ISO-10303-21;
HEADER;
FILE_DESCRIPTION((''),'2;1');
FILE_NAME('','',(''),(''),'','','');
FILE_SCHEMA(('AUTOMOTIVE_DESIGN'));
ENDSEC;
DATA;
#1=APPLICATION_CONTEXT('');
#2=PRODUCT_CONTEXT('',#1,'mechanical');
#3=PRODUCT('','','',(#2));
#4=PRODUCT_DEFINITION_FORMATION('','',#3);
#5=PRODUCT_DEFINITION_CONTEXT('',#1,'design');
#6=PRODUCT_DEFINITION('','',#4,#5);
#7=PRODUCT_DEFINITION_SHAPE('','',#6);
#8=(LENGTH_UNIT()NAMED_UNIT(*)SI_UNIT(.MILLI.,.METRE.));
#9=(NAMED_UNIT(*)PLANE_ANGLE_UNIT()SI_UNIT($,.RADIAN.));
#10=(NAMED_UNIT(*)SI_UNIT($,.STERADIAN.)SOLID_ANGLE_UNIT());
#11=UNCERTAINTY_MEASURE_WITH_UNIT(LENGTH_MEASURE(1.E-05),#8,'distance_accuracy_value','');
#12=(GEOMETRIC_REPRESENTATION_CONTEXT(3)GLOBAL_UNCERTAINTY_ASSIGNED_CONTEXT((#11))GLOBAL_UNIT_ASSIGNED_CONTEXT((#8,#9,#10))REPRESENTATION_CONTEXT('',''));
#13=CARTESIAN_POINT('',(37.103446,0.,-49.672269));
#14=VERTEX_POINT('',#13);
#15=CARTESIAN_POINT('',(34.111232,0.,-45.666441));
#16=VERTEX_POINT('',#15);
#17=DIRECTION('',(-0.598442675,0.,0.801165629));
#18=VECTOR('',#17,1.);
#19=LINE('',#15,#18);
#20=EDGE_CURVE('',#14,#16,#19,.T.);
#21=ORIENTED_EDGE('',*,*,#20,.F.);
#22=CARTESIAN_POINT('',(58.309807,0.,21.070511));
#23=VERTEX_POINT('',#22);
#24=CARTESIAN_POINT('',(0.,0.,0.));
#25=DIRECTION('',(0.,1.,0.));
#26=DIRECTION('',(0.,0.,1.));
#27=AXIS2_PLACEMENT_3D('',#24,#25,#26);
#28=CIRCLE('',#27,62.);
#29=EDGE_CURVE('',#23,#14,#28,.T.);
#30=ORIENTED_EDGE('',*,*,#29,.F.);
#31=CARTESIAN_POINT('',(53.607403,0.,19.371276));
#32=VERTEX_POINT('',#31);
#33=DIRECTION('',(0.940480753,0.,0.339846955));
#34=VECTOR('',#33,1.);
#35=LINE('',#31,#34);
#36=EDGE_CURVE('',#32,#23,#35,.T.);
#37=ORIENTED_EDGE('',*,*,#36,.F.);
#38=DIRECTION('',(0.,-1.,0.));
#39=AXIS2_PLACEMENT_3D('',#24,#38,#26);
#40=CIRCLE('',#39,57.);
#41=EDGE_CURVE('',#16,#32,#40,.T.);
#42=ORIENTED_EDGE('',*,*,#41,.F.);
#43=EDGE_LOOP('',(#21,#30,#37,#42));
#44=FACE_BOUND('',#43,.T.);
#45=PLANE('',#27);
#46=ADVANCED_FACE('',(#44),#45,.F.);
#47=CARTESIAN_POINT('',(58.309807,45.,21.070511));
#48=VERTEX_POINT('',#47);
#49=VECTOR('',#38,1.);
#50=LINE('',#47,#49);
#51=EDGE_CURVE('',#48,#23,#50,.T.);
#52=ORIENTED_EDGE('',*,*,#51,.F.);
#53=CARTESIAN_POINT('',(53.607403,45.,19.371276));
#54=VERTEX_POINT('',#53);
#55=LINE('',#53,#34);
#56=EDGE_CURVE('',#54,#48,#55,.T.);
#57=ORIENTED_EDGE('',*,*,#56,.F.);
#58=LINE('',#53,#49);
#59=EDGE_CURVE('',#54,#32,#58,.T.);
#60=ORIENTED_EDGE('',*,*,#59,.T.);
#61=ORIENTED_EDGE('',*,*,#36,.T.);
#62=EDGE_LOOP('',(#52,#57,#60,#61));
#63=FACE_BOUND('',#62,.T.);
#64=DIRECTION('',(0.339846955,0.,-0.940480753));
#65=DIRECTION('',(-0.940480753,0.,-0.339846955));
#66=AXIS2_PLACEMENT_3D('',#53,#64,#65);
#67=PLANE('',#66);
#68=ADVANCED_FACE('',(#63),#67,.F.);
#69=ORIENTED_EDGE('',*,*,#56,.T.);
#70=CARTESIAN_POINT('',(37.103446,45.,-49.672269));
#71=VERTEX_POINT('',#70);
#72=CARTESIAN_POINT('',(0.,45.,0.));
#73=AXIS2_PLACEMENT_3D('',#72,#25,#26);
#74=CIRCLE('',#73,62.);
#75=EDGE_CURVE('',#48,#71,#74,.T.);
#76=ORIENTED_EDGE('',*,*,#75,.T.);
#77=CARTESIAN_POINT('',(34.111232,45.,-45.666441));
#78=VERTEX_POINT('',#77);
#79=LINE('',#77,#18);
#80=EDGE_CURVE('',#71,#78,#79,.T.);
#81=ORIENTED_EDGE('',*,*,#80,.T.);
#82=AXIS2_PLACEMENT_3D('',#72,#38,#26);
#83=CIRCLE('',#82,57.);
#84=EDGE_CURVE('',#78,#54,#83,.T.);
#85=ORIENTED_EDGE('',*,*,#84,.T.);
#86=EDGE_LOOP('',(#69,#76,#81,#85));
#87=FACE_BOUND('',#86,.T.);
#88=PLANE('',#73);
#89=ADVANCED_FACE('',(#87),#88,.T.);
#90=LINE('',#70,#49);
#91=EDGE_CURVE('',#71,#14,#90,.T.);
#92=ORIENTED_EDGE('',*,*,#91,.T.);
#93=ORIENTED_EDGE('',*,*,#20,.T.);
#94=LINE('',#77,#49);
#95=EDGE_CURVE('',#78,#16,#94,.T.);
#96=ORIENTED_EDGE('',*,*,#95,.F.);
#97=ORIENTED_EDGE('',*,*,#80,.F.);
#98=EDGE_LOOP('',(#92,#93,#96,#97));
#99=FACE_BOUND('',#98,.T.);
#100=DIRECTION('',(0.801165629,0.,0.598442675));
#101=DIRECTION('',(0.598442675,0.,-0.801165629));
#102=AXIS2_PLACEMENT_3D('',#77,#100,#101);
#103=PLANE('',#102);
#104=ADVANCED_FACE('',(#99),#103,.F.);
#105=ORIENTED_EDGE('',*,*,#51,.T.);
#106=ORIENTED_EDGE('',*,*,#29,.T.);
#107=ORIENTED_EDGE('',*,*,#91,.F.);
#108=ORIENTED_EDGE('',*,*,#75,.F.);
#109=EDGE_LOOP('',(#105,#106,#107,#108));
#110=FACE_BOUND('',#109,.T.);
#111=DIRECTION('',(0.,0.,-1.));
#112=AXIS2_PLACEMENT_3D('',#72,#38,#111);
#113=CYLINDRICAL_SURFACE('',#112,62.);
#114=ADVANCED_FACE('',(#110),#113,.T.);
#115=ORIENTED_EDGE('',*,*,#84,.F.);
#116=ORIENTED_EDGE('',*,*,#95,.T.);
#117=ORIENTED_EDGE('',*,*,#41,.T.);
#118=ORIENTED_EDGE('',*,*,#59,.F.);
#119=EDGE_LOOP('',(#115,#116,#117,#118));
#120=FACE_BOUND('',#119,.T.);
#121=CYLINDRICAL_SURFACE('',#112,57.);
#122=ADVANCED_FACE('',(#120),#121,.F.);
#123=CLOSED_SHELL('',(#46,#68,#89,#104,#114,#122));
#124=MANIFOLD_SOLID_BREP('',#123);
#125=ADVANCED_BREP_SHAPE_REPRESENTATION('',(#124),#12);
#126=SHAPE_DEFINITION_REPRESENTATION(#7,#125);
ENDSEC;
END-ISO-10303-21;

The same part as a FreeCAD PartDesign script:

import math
import FreeCAD as App
import Part
import Sketcher
from FreeCAD import Vector

doc = App.newDocument("Part")
params = doc.addObject("Spreadsheet::Sheet", "Params")
for row, (alias, value) in enumerate([
    ("sketch1_radius", "62 mm"),
    ("sketch1_radius2", "57 mm"),
    ("pad1_length", "45 mm"),
], start=1):
    params.set(f"A{row}", alias)
    params.set(f"B{row}", "=" + value)
    params.setAlias(f"B{row}", alias)

body = doc.addObject("PartDesign::Body", "Body")

sketch1 = doc.addObject("Sketcher::SketchObject", "Sketch")
body.addObject(sketch1)
sketch1.AttachmentSupport = (doc.XZ_Plane, [""])
sketch1.MapMode = "FlatFace"
sketch1.addGeometry(Part.LineSegment(Vector(53.6, 19.4, 0), Vector(58.3, 21.1, 0)), False)
sketch1.addGeometry(Part.ArcOfCircle(Part.Circle(Vector(0, 0, 0), Vector(0, 0, 1), 62), math.radians(-53), math.radians(20)), False)
sketch1.addGeometry(Part.LineSegment(Vector(37.1, -49.7, 0), Vector(34.1, -45.7, 0)), False)
sketch1.addGeometry(Part.ArcOfCircle(Part.Circle(Vector(0, 0, 0), Vector(0, 0, 1), 57), math.radians(-53), math.radians(20)), False)
sketch1.addConstraint(Sketcher.Constraint("Coincident", 0, 2, 1, 2))
sketch1.addConstraint(Sketcher.Constraint("Coincident", 1, 1, 2, 1))
sketch1.addConstraint(Sketcher.Constraint("Coincident", 2, 2, 3, 1))
sketch1.addConstraint(Sketcher.Constraint("Coincident", 3, 2, 0, 1))
sketch1.addConstraint(Sketcher.Constraint("Coincident", 1, 3, -1, 1))
sketch1.addConstraint(Sketcher.Constraint("Coincident", 3, 3, -1, 1))
sketch1.addConstraint(Sketcher.Constraint("Radius", 1, 62.0))
sketch1.addConstraint(Sketcher.Constraint("Radius", 3, 57.0))
sketch1.addConstraint(Sketcher.Constraint("DistanceY", -1, 1, 0, 2, 21.070511))
sketch1.addConstraint(Sketcher.Constraint("DistanceY", 1, 1, -1, 1, 49.672269))
sketch1.addConstraint(Sketcher.Constraint("DistanceY", 2, 2, -1, 1, 45.666441))
sketch1.addConstraint(Sketcher.Constraint("DistanceX", 2, 2, 3, 2, 19.49617))
sketch1.setExpression("Constraints[6]", "Params.sketch1_radius")
sketch1.setExpression("Constraints[7]", "Params.sketch1_radius2")
pad1 = doc.addObject("PartDesign::Pad", "Pad")
body.addObject(pad1)
pad1.Profile = sketch1
pad1.setExpression("Length", "Params.pad1_length")
pad1.Reversed = True

doc.recompute()
